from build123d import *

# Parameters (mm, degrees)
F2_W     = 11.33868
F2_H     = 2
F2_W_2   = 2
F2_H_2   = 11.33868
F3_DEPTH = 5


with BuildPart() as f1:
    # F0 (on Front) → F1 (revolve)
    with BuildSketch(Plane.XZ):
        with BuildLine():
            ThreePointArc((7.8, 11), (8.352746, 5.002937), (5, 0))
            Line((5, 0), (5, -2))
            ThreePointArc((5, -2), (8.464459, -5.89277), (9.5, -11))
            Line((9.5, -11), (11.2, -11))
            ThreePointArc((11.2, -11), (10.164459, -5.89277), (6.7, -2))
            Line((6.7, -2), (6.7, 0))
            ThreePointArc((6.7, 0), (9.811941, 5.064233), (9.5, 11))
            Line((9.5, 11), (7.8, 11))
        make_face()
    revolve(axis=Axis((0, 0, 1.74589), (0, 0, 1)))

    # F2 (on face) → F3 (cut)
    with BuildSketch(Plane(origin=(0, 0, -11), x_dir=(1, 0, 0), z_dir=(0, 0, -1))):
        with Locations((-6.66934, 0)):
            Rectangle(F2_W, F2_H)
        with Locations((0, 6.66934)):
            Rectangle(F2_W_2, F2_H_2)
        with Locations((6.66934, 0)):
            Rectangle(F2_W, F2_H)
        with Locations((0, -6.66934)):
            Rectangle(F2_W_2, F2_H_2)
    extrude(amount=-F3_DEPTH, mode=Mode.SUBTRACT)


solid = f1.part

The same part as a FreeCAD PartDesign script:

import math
import FreeCAD as App
import Part
import Sketcher


def add_polygon(sketch, points):
    """Adds a closed chain of lines whose ends are joined by coincident constraints."""
    first, n = sketch.GeometryCount, len(points)
    for a, b in zip(points, points[1:] + points[:1]):
        sketch.addGeometry(Part.LineSegment(App.Vector(*a, 0), App.Vector(*b, 0)), False)
    for i in range(n):
        sketch.addConstraint(Sketcher.Constraint("Coincident", first + i, 2, first + (i + 1) % n, 1))

doc = App.newDocument("Part")
body = doc.addObject("PartDesign::Body", "Body")

sketch1 = body.newObject("Sketcher::SketchObject", "Sketch")
sketch1.AttachmentSupport = (doc.getObject("XZ_Plane"), [""])
sketch1.MapMode = "FlatFace"
sketch1.addGeometry([
    Part.ArcOfCircle(Part.Circle(App.Vector(-0.4, 7.2, 0), App.Vector(0, 0, 1), 9), math.radians(-53), math.radians(25)),
    Part.LineSegment(App.Vector(5, 0, 0), App.Vector(5, -2, 0)),
    Part.ArcOfCircle(Part.Circle(App.Vector(-0.5, -10.4, 0), App.Vector(0, 0, 1), 10), math.radians(-4), math.radians(57)),
    Part.LineSegment(App.Vector(9.5, -11, 0), App.Vector(11.2, -11, 0)),
    Part.ArcOfCircle(Part.Circle(App.Vector(1.2, -10.4, 0), App.Vector(0, 0, 1), 10), math.radians(-4), math.radians(57)),
    Part.LineSegment(App.Vector(6.7, -2, 0), App.Vector(6.7, 0, 0)),
    Part.ArcOfCircle(Part.Circle(App.Vector(0.1, 7.5, 0), App.Vector(0, 0, 1), 10), math.radians(-49), math.radians(20)),
    Part.LineSegment(App.Vector(9.5, 11, 0), App.Vector(7.8, 11, 0)),
], False)
sketch1.addConstraint([
    Sketcher.Constraint("Coincident", 0, 1, 1, 1),
    Sketcher.Constraint("Coincident", 1, 2, 2, 2),
    Sketcher.Constraint("Coincident", 2, 1, 3, 1),
    Sketcher.Constraint("Coincident", 3, 2, 4, 1),
    Sketcher.Constraint("Coincident", 4, 2, 5, 1),
    Sketcher.Constraint("Coincident", 5, 2, 6, 1),
    Sketcher.Constraint("Coincident", 6, 2, 7, 1),
    Sketcher.Constraint("Coincident", 7, 2, 0, 2),
    Sketcher.Constraint("Vertical", 1),
    Sketcher.Constraint("Horizontal", 3),
    Sketcher.Constraint("Vertical", 5),
    Sketcher.Constraint("Horizontal", 7),
    Sketcher.Constraint("Equal", 2, 4),
    Sketcher.Constraint("Symmetric", 2, 1, 6, 2, -1),
    Sketcher.Constraint("PointOnObject", 0, 1, -1),
    Sketcher.Constraint("PointOnObject", 5, 2, -1),
    Sketcher.Constraint("Horizontal", 2, 3, 4, 3),
    Sketcher.Constraint("Horizontal", 1, 2, 4, 2),
    Sketcher.Constraint("Equal", 3, 7),
    Sketcher.Constraint("Radius", 0, 9.000001),
    Sketcher.Constraint("Radius", 6, 9.999999),
    Sketcher.Constraint("DistanceY", 1, 2, 1, 1, 2.0),
    Sketcher.Constraint("DistanceX", 3, 1, 3, 2, 1.7),
    Sketcher.Constraint("DistanceX", -1, 1, 0, 1, 5.0),
    Sketcher.Constraint("DistanceY", 2, 1, -1, 1, 11.0),
    Sketcher.Constraint("DistanceX", -1, 1, 2, 1, 9.5),
    Sketcher.Constraint("Radius", 2, 10.000002),
])
revolution = body.newObject("PartDesign::Revolution", "Revolution")
revolution.Profile = sketch1
revolution.ReferenceAxis = (sketch1, ["V_Axis"])
revolution.Angle = 360

sketch2 = body.newObject("Sketcher::SketchObject", "Sketch001")
sketch2.AttachmentSupport = (doc.getObject("XY_Plane"), [""])
sketch2.MapMode = "FlatFace"
sketch2.AttachmentOffset = App.Placement(App.Vector(0, 0, -11), App.Rotation())
add_polygon(sketch2, [(-12.3, -1), (-12.3, 1), (-1, 1), (-1, -1)])
add_polygon(sketch2, [(-1, -12.3), (-1, -1), (1, -1), (1, -12.3)])
add_polygon(sketch2, [(1, -1), (1, 1), (12.3, 1), (12.3, -1)])
add_polygon(sketch2, [(-1, 1), (-1, 12.3), (1, 12.3), (1, 1)])
sketch2.addConstraint([
    Sketcher.Constraint("Vertical", 0),
    Sketcher.Constraint("Horizontal", 1),
    Sketcher.Constraint("Vertical", 2),
    Sketcher.Constraint("Horizontal", 3),
    Sketcher.Constraint("Vertical", 4),
    Sketcher.Constraint("Horizontal", 5),
    Sketcher.Constraint("Vertical", 6),
    Sketcher.Constraint("Horizontal", 7),
    Sketcher.Constraint("Vertical", 8),
    Sketcher.Constraint("Horizontal", 9),
    Sketcher.Constraint("Vertical", 10),
    Sketcher.Constraint("Horizontal", 11),
    Sketcher.Constraint("Vertical", 12),
    Sketcher.Constraint("Horizontal", 13),
    Sketcher.Constraint("Vertical", 14),
    Sketcher.Constraint("Horizontal", 15),
    Sketcher.Constraint("Coincident", 4, 2, 2, 2),
    Sketcher.Constraint("Coincident", 11, 2, 5, 2),
    Sketcher.Constraint("Coincident", 14, 2, 8, 2),
    Sketcher.Constraint("Coincident", 15, 2, 1, 2),
    Sketcher.Constraint("Symmetric", 1, 2, 5, 2, -1, 1),
    Sketcher.Constraint("Equal", 3, 9),
    Sketcher.Constraint("Equal", 15, 0),
    Sketcher.Constraint("Equal", 11, 4),
    Sketcher.Constraint("Equal", 6, 12),
    Sketcher.Constraint("DistanceX", 5, 1, 5, 2, 2.0),
    Sketcher.Constraint("DistanceX", 1, 1, 1, 2, 11.33868),
])
pocket1 = body.newObject("PartDesign::Pocket", "Pocket")
pocket1.Profile = sketch2
pocket1.Length = 5
pocket1.Reversed = True

doc.recompute()
